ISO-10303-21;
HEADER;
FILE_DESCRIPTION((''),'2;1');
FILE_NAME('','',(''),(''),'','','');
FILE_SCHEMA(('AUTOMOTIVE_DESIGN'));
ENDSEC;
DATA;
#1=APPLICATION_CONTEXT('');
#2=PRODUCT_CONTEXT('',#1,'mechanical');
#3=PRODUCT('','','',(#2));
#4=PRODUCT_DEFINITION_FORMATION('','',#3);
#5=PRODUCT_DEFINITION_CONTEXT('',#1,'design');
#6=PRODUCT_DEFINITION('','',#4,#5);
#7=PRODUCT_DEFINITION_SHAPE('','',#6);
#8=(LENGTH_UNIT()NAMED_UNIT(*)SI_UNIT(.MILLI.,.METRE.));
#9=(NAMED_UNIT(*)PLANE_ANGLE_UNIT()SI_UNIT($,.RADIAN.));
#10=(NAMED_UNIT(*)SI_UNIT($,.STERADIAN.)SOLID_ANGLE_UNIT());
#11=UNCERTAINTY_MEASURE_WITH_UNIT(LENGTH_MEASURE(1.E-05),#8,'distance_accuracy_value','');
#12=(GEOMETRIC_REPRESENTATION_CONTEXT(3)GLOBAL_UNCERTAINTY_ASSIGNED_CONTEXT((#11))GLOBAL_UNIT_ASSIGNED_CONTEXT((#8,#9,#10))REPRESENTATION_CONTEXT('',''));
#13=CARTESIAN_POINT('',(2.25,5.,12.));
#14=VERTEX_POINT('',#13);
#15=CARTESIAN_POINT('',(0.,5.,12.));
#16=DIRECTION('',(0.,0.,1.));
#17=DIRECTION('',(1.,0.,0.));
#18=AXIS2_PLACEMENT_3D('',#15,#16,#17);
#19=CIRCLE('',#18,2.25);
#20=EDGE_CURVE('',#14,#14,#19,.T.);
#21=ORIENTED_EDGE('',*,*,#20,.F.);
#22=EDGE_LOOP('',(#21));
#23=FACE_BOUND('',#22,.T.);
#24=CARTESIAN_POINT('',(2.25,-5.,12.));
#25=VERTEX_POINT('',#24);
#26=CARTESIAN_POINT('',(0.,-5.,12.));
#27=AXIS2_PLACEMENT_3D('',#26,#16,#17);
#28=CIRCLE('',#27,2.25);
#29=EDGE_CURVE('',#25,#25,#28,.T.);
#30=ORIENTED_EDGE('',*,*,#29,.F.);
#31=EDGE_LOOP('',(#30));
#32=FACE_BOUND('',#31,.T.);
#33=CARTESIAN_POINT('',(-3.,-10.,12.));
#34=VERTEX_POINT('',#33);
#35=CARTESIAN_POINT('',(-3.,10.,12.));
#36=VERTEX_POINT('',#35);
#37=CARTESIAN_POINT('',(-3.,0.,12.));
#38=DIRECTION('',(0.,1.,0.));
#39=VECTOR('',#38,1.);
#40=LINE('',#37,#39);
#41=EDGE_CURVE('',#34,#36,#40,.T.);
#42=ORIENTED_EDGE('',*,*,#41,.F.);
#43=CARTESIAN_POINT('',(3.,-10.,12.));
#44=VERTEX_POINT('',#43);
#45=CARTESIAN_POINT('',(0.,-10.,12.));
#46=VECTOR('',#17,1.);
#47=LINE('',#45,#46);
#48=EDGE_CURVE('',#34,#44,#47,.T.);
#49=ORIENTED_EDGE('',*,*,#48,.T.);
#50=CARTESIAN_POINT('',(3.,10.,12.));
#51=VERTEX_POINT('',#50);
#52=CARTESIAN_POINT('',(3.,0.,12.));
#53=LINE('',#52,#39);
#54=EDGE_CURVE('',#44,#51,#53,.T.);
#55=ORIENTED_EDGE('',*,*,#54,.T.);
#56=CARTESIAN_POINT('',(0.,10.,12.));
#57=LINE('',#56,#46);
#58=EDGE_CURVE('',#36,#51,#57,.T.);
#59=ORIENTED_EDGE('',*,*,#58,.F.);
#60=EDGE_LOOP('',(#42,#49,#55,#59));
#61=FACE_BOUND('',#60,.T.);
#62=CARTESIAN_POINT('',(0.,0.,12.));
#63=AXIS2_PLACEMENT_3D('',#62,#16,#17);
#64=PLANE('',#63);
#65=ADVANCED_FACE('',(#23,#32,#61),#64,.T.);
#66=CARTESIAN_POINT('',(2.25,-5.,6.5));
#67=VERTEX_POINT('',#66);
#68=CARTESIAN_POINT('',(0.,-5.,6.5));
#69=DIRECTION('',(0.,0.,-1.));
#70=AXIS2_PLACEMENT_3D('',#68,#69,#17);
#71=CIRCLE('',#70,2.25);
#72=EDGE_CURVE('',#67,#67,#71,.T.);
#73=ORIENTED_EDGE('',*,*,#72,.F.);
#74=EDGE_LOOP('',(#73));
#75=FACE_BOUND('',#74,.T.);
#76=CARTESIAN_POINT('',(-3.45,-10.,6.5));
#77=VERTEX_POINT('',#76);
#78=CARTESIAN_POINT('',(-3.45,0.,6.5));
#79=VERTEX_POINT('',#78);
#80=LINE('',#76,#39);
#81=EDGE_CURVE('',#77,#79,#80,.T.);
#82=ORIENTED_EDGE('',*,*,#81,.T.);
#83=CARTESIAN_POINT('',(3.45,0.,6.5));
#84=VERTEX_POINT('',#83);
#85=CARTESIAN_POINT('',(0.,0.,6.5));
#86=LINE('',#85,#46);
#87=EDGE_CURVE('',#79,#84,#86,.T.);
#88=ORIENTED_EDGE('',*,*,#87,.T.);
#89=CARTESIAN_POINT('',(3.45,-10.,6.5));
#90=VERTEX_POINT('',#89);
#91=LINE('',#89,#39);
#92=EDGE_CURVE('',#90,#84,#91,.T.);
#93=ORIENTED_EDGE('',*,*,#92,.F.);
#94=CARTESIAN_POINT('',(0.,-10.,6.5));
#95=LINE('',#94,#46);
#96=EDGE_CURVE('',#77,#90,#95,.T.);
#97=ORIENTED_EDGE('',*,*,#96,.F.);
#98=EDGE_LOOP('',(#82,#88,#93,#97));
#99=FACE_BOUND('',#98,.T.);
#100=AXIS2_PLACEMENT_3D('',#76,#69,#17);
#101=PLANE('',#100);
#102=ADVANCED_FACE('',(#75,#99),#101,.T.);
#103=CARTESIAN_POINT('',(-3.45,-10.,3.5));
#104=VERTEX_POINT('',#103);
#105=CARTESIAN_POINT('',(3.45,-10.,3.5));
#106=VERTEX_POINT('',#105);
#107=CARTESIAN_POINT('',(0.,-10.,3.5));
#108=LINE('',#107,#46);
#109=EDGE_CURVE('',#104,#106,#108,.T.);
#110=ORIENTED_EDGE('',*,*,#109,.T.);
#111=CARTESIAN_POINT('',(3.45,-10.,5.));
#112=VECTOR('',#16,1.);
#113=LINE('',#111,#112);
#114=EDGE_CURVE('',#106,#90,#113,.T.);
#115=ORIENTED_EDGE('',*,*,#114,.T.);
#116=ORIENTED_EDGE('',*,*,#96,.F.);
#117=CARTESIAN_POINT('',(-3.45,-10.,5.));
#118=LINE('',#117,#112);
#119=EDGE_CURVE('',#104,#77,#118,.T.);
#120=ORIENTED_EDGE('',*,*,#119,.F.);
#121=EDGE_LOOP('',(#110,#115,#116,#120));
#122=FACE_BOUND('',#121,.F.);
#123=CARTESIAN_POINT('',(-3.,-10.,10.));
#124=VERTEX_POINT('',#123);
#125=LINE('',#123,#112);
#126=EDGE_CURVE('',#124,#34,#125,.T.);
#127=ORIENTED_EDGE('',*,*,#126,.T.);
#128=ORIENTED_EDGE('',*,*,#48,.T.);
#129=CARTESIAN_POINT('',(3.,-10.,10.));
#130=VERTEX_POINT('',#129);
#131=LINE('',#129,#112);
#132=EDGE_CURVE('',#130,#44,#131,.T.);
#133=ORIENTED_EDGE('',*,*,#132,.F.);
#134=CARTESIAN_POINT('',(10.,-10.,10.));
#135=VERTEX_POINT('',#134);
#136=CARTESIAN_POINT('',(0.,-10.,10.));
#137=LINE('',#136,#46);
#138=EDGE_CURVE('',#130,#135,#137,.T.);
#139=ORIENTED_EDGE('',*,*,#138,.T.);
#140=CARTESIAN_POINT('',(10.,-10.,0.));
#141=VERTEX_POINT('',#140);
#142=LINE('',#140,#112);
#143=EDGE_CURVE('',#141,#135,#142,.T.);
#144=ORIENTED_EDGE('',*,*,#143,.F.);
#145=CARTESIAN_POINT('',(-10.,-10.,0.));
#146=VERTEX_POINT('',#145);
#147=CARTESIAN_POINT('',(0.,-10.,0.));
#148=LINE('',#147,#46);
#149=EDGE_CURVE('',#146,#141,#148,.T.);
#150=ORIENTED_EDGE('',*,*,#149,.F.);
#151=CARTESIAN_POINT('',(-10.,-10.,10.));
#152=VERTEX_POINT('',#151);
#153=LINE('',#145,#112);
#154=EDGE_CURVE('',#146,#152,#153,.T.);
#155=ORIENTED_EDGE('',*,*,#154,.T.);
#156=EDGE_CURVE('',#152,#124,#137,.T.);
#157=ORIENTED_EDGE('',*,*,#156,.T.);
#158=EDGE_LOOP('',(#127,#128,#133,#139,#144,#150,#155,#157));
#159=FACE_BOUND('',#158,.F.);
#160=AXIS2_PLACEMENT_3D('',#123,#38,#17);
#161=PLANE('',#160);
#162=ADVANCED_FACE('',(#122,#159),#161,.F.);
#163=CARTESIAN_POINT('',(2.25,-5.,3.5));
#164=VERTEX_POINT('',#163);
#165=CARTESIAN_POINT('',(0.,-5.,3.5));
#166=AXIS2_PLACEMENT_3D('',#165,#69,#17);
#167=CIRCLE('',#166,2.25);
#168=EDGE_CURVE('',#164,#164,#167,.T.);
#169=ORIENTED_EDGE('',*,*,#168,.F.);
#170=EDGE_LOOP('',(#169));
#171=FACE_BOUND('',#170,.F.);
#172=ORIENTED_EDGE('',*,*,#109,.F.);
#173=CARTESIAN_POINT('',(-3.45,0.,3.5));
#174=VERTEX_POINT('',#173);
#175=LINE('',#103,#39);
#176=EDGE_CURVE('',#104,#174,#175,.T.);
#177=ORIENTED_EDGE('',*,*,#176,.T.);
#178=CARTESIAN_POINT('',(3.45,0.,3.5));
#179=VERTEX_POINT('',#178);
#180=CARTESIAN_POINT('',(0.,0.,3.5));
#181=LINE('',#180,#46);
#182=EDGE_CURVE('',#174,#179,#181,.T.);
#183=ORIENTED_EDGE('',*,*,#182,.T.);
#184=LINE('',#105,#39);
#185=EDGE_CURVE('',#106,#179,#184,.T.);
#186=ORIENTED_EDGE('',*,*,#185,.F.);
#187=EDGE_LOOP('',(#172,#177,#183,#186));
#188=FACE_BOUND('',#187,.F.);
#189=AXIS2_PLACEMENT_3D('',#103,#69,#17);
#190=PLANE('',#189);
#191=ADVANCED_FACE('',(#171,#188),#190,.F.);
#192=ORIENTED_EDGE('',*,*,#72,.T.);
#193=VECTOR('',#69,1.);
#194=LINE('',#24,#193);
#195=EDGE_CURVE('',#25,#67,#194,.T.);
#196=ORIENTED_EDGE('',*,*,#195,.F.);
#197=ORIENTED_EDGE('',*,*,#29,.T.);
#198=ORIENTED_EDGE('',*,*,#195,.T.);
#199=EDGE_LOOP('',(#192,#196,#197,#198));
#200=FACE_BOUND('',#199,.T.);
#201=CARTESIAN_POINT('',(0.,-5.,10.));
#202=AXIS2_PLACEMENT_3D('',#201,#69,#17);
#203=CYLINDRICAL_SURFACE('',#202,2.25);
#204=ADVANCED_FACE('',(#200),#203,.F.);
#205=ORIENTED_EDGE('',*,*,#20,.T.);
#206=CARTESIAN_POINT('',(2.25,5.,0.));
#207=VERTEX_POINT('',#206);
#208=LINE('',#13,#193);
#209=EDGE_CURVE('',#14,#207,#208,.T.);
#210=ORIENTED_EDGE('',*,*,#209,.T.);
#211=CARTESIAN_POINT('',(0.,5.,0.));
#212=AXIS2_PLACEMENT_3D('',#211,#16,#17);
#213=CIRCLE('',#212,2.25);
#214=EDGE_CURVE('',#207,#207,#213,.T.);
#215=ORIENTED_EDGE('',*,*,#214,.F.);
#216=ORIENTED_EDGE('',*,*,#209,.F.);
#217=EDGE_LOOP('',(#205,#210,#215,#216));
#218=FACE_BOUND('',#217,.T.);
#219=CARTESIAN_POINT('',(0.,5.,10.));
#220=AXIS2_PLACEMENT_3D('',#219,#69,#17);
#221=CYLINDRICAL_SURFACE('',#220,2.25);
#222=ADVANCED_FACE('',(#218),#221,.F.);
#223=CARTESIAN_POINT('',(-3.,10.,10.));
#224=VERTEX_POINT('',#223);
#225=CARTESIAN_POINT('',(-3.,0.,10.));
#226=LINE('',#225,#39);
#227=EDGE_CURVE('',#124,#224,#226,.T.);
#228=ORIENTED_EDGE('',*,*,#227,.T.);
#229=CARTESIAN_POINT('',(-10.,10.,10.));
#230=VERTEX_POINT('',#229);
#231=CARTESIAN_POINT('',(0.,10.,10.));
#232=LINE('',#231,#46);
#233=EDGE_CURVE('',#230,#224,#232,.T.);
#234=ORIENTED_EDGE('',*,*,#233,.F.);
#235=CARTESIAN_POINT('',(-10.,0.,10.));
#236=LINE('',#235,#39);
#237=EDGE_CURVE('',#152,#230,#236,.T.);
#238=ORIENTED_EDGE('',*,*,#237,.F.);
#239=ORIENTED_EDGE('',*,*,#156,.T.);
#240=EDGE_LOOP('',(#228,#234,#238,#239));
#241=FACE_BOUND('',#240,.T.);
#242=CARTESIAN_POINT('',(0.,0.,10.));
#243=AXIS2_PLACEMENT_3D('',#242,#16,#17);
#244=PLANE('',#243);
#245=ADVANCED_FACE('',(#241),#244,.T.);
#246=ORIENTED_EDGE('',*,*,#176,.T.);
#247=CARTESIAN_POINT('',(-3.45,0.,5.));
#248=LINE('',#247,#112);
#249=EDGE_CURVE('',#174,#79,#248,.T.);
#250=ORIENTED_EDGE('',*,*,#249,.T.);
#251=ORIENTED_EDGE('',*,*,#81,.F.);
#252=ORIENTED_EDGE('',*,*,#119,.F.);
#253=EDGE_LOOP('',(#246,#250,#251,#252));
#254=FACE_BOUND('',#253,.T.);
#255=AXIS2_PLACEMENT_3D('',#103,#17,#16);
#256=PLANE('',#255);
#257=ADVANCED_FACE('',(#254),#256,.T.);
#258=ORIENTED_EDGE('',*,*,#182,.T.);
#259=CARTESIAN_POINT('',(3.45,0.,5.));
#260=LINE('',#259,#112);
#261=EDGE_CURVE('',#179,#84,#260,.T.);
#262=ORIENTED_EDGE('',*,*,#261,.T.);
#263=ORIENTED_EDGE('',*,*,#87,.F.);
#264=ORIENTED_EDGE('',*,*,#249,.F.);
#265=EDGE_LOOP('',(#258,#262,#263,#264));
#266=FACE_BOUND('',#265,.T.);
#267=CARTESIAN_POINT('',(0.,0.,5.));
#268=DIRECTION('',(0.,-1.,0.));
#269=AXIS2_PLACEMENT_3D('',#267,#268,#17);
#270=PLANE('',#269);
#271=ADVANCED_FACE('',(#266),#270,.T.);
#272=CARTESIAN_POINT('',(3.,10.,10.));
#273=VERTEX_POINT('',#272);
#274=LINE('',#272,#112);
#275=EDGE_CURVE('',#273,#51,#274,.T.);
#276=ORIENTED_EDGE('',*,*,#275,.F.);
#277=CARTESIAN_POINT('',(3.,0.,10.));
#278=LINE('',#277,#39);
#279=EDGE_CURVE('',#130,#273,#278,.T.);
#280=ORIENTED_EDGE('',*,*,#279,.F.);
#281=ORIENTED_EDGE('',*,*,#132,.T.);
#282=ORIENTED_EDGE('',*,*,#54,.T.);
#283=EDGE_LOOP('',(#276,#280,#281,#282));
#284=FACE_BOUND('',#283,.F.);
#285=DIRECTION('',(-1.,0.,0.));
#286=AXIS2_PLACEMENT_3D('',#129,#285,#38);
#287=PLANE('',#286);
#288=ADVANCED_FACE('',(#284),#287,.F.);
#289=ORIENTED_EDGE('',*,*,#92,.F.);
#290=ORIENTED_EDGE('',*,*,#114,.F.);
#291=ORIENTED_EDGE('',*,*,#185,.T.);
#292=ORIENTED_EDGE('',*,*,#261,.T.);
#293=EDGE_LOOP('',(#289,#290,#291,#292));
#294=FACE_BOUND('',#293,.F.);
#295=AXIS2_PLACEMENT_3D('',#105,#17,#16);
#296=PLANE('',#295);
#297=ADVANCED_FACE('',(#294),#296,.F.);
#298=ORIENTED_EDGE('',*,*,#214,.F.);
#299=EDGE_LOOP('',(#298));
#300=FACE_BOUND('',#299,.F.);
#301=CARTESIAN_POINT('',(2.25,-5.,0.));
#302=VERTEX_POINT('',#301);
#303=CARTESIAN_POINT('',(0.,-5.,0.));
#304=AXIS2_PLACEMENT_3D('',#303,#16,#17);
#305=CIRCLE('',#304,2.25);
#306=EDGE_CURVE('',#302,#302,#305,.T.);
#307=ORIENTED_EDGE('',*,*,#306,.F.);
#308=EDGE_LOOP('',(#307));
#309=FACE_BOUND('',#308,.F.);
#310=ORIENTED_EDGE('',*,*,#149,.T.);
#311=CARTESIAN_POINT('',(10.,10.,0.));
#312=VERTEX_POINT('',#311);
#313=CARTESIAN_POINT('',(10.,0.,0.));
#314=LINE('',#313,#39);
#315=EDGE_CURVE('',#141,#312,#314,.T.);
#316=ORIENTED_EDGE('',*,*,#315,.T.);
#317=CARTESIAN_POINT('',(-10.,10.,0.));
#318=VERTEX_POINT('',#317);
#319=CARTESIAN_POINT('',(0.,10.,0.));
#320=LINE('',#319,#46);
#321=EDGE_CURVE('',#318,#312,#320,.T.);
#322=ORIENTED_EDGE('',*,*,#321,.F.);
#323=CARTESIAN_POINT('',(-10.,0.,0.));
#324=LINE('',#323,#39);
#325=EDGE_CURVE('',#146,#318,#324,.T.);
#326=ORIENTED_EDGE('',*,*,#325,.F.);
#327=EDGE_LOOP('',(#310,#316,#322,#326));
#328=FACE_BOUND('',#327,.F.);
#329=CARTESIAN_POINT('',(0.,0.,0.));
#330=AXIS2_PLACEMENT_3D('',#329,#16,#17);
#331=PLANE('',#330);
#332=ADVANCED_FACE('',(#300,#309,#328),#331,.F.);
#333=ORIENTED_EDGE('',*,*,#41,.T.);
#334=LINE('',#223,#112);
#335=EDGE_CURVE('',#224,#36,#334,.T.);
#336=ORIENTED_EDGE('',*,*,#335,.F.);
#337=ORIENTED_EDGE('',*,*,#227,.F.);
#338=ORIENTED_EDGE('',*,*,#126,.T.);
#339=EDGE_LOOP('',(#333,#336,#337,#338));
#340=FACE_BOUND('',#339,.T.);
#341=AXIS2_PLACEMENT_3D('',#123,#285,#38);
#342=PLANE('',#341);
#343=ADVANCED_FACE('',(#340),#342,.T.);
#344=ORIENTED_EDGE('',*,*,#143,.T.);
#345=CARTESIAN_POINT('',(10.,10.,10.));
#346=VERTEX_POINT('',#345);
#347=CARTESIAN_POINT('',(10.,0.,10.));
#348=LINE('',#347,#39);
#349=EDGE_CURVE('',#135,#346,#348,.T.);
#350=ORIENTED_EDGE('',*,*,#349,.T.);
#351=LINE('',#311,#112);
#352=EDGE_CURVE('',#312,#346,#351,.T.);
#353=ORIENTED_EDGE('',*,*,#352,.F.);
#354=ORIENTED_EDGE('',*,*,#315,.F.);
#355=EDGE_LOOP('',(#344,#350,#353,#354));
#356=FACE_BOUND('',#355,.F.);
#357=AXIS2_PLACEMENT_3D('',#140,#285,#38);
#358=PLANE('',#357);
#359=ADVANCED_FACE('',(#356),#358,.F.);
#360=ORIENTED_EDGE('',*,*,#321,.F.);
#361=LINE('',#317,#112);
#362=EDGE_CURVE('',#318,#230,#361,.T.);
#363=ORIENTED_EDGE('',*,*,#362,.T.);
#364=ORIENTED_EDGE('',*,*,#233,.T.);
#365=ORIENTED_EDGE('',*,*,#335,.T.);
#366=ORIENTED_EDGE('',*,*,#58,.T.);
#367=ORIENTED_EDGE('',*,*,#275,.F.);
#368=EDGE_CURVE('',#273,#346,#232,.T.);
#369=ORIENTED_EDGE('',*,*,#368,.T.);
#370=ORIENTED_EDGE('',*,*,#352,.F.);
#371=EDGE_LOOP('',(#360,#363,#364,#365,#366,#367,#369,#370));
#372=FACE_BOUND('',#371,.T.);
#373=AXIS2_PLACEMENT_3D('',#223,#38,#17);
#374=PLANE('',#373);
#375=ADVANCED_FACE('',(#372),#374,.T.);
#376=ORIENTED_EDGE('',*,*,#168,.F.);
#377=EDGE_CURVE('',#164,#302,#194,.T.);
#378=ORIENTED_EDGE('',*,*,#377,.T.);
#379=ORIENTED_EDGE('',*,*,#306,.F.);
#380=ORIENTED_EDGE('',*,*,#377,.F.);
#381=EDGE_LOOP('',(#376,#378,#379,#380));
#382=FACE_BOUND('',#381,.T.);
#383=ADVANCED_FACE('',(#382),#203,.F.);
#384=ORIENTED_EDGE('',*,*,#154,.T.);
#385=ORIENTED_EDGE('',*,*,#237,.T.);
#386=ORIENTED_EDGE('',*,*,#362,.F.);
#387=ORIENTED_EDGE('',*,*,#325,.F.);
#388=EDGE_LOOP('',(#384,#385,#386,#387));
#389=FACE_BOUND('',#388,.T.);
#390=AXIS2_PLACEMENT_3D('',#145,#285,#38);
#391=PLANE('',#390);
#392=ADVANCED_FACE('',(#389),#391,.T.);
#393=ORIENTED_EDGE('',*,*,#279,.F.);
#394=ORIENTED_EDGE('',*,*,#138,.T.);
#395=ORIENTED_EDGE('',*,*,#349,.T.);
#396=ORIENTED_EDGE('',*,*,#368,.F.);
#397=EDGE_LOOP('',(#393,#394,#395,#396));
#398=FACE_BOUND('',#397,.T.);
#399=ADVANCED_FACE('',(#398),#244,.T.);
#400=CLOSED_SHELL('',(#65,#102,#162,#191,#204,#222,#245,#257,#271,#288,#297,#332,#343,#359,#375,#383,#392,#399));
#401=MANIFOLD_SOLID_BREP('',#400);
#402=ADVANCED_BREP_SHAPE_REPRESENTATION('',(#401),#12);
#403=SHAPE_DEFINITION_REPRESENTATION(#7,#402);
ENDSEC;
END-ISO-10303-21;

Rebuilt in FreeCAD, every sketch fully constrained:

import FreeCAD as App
import Part
import Sketcher

V = App.Vector


def add_polygon(sketch, points):
    """Adds a closed chain of lines whose ends are joined by coincident constraints."""
    first, n = sketch.GeometryCount, len(points)
    for a, b in zip(points, points[1:] + points[:1]):
        sketch.addGeometry(Part.LineSegment(App.Vector(*a, 0), App.Vector(*b, 0)), False)
    for i in range(n):
        sketch.addConstraint(Sketcher.Constraint("Coincident", first + i, 2, first + (i + 1) % n, 1))

doc = App.newDocument("Part")
body = doc.addObject("PartDesign::Body", "Body")

sketch1 = body.newObject("Sketcher::SketchObject", "Sketch")
sketch1.AttachmentSupport = (doc.getObject("XY_Plane"), [""])
sketch1.MapMode = "FlatFace"
add_polygon(sketch1, [(-10, 10), (-10, -10), (10, -10), (10, 10)])
sketch1.addGeometry(Part.Circle(V(0, -5, 0), V(0, 0, 1), 2.25), False)
sketch1.addGeometry(Part.Circle(V(0, 5, 0), V(0, 0, 1), 2.25), False)
sketch1.addConstraint(Sketcher.Constraint("Vertical", 0))
sketch1.addConstraint(Sketcher.Constraint("Horizontal", 1))
sketch1.addConstraint(Sketcher.Constraint("Vertical", 2))
sketch1.addConstraint(Sketcher.Constraint("Horizontal", 3))
sketch1.addConstraint(Sketcher.Constraint("Equal", 4, 5))
sketch1.addConstraint(Sketcher.Constraint("Symmetric", 4, 3, 5, 3, -1, 1))
sketch1.addConstraint(Sketcher.Constraint("Symmetric", 0, 2, 2, 2, -1, 1))
sketch1.addConstraint(Sketcher.Constraint("PointOnObject", 4, 3, -2))
sketch1.addConstraint(Sketcher.Constraint("Equal", 3, 0))
sketch1.addConstraint(Sketcher.Constraint("Diameter", 4, 4.5))
sketch1.addConstraint(Sketcher.Constraint("DistanceX", 1, 1, 1, 2, 20.0))
sketch1.addConstraint(Sketcher.Constraint("DistanceY", 4, 3, -1, 1, 5.0))
pad1 = body.newObject("PartDesign::Pad", "Pad")
pad1.Profile = sketch1
pad1.Length = 10

sketch2 = body.newObject("Sketcher::SketchObject", "Sketch001")
sketch2.AttachmentSupport = (doc.getObject("XY_Plane"), [""])
sketch2.MapMode = "FlatFace"
sketch2.AttachmentOffset = App.Placement(V(0, 0, 10), App.Rotation())
add_polygon(sketch2, [(-3, 10), (-3, -10), (3, -10), (3, 10)])
sketch2.addGeometry(Part.Circle(V(0, -5, 0), V(0, 0, 1), 2.25), False)
sketch2.addGeometry(Part.Circle(V(0, 5, 0), V(0, 0, 1), 2.25), False)
sketch2.addConstraint(Sketcher.Constraint("Vertical", 0))
sketch2.addConstraint(Sketcher.Constraint("Horizontal", 1))
sketch2.addConstraint(Sketcher.Constraint("Vertical", 2))
sketch2.addConstraint(Sketcher.Constraint("Horizontal", 3))
sketch2.addConstraint(Sketcher.Constraint("Equal", 4, 5))
sketch2.addConstraint(Sketcher.Constraint("Symmetric", 4, 3, 5, 3, -1, 1))
sketch2.addConstraint(Sketcher.Constraint("Symmetric", 0, 2, 2, 2, -1, 1))
sketch2.addConstraint(Sketcher.Constraint("PointOnObject", 4, 3, -2))
sketch2.addConstraint(Sketcher.Constraint("Diameter", 4, 4.5))
sketch2.addConstraint(Sketcher.Constraint("DistanceX", 1, 1, 1, 2, 6.0))
sketch2.addConstraint(Sketcher.Constraint("DistanceY", 0, 2, 0, 1, 20.0))
sketch2.addConstraint(Sketcher.Constraint("DistanceY", 4, 3, -1, 1, 5.0))
pad2 = body.newObject("PartDesign::Pad", "Pad001")
pad2.Profile = sketch2
pad2.Length = 2

sketch3 = body.newObject("Sketcher::SketchObject", "Sketch002")
sketch3.AttachmentSupport = (doc.getObject("XZ_Plane"), [""])
sketch3.MapMode = "FlatFace"
sketch3.AttachmentOffset = App.Placement(V(0, 0, 10), App.Rotation())
add_polygon(sketch3, [(-3.45, 6.5), (-3.45, 3.5), (3.45, 3.5), (3.45, 6.5)])
sketch3.addConstraint(Sketcher.Constraint("Vertical", 0))
sketch3.addConstraint(Sketcher.Constraint("Horizontal", 1))
sketch3.addConstraint(Sketcher.Constraint("Vertical", 2))
sketch3.addConstraint(Sketcher.Constraint("Horizontal", 3))
sketch3.addConstraint(Sketcher.Constraint("DistanceY", 0, 2, 0, 1, 3.0))
sketch3.addConstraint(Sketcher.Constraint("DistanceX", 1, 1, 1, 2, 6.9))
sketch3.addConstraint(Sketcher.Constraint("DistanceY", -1, 1, 0, 2, 3.5))
sketch3.addConstraint(Sketcher.Constraint("DistanceX", 0, 2, -1, 1, 3.45))
pocket1 = body.newObject("PartDesign::Pocket", "Pocket")
pocket1.Profile = sketch3
pocket1.Length = 10

doc.recompute()
